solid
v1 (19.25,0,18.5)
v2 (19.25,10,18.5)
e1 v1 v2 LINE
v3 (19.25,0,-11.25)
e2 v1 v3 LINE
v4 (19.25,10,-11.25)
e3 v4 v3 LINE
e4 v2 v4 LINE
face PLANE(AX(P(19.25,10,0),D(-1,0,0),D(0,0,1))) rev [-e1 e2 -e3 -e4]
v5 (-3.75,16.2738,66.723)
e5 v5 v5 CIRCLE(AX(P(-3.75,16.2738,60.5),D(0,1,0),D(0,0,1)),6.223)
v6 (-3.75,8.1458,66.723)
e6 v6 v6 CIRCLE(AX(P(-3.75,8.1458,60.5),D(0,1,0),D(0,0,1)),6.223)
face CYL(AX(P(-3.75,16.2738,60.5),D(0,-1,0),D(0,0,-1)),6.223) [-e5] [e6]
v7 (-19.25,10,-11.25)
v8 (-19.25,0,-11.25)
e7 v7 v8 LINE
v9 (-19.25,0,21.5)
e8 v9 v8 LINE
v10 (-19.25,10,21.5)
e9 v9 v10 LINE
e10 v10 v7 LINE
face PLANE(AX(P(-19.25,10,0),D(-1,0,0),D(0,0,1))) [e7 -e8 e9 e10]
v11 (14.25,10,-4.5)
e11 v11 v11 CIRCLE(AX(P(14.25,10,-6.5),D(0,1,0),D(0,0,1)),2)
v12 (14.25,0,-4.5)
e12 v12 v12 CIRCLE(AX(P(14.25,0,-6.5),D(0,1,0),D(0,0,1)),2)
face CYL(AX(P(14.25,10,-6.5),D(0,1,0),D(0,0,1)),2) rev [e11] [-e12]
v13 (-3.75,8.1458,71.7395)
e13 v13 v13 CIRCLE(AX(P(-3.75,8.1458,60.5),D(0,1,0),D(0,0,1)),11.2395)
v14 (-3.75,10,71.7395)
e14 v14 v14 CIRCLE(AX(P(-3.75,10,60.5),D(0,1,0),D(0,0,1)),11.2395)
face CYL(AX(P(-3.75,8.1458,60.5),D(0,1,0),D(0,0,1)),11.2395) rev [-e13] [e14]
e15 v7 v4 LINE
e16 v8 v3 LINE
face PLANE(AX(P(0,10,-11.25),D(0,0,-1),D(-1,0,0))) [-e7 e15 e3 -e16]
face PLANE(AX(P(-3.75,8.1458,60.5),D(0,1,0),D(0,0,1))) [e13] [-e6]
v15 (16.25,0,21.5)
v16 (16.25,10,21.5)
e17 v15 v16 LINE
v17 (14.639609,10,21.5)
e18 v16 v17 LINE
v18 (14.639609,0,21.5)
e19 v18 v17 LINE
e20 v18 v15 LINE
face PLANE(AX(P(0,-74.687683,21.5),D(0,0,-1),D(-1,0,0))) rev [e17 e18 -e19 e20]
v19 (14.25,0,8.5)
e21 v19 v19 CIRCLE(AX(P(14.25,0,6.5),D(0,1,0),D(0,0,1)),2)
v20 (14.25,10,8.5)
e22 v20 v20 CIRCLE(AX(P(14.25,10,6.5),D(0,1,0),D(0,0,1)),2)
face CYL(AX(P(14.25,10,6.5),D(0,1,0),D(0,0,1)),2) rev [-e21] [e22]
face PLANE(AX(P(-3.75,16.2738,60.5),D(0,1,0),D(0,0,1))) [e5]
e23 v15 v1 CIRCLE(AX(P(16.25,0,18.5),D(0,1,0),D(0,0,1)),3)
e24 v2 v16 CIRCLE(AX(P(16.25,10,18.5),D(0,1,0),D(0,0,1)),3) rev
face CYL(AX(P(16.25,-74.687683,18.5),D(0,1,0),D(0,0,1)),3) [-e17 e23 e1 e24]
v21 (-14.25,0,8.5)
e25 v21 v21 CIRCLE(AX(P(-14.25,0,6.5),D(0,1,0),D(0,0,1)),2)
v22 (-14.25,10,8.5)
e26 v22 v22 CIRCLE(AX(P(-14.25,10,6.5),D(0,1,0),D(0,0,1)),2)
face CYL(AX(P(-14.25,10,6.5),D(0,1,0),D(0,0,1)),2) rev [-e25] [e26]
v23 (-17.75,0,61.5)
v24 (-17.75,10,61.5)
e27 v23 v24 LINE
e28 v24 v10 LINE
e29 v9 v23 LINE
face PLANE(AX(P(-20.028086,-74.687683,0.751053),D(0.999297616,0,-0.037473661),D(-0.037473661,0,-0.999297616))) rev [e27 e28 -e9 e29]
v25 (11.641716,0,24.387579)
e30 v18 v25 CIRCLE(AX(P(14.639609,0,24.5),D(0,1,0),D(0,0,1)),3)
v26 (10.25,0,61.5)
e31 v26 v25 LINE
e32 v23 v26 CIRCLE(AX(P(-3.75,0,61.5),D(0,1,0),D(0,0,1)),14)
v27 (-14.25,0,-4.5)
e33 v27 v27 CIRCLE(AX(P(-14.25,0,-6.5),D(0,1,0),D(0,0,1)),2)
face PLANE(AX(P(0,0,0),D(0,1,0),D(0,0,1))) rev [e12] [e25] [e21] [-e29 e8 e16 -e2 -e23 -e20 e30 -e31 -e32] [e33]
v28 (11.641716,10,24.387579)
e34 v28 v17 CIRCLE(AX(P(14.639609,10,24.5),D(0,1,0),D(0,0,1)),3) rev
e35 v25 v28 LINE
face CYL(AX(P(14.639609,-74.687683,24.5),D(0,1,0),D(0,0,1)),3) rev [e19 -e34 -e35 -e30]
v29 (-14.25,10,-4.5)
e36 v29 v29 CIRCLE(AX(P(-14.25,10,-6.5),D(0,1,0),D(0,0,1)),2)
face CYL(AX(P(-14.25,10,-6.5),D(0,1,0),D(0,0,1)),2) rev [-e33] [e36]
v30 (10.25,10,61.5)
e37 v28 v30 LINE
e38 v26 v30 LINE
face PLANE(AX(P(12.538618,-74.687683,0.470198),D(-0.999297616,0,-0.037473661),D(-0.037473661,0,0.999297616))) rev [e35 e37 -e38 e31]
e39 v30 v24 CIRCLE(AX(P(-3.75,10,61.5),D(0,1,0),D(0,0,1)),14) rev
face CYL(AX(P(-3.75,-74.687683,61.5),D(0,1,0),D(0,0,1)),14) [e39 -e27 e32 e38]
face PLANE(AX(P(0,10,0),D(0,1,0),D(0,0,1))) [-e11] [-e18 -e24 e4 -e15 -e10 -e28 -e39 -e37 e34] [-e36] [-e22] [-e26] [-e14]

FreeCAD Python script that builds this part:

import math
import FreeCAD as App
import Part
import Sketcher

V = App.Vector


def add_polygon(sketch, points):
    """Adds a closed chain of lines whose ends are joined by coincident constraints."""
    first, n = sketch.GeometryCount, len(points)
    for a, b in zip(points, points[1:] + points[:1]):
        sketch.addGeometry(Part.LineSegment(App.Vector(*a, 0), App.Vector(*b, 0)), False)
    for i in range(n):
        sketch.addConstraint(Sketcher.Constraint("Coincident", first + i, 2, first + (i + 1) % n, 1))

doc = App.newDocument("Part")
params = doc.addObject("Spreadsheet::Sheet", "Params")
for row, (alias, value) in enumerate([
    ("sketch1_width", "38.5 mm"),
    ("sketch1_height", "22.75 mm"),
    ("pad1_length", "10 mm"),
    ("sketch2_diameter", "4 mm"),
    ("hole_diameter", "4 mm"),
    ("sketch3_radius", "3 mm"),
    ("sketch3_radius2", "14 mm"),
    ("sketch3_height", "10 mm"),
    ("sketch3_width", "38.5 mm"),
    ("pad2_length", "10 mm"),
    ("pocket1_length", "1.8542 mm"),
    ("pad3_length", "8.128 mm"),
], start=1):
    params.set(f"A{row}", alias)
    params.set(f"B{row}", "=" + value)
    params.setAlias(f"B{row}", alias)

body = doc.addObject("PartDesign::Body", "Body")

# Sketch on XZ plane
sketch1 = doc.addObject("Sketcher::SketchObject", "Sketch")
body.addObject(sketch1)
sketch1.AttachmentSupport = (doc.XZ_Plane, [""])
sketch1.MapMode = "FlatFace"
add_polygon(sketch1, [(-19, -11), (-19, 12), (19, 12), (19, -11)])  # lines 0-3
sketch1.addConstraint([
    Sketcher.Constraint("Vertical", 0),
    Sketcher.Constraint("Horizontal", 1),
    Sketcher.Constraint("Vertical", 2),
    Sketcher.Constraint("Horizontal", 3),
    Sketcher.Constraint("DistanceX", 1, 1, 1, 2, 38.5),
    Sketcher.Constraint("DistanceY", 0, 1, 0, 2, 22.75),
    Sketcher.Constraint("DistanceY", -1, 1, 0, 2, 11.5),
    Sketcher.Constraint("DistanceX", 0, 2, -1, 1, 19.25),
])
sketch1.setExpression("Constraints[8]", "Params.sketch1_width")
sketch1.setExpression("Constraints[9]", "Params.sketch1_height")
pad1 = doc.addObject("PartDesign::Pad", "Pad")
body.addObject(pad1)
pad1.Profile = sketch1
pad1.setExpression("Length", "Params.pad1_length")
pad1.Reversed = True

# Sketch on XZ plane
sketch2 = doc.addObject("Sketcher::SketchObject", "Sketch001")
body.addObject(sketch2)
sketch2.AttachmentSupport = (doc.XZ_Plane, [""])
sketch2.MapMode = "FlatFace"
sketch2.AttachmentOffset = App.Placement(V(0, 0, -10), App.Rotation())
sketch2.addGeometry([
    Part.Circle(V(14.2, -6.5, 0), V(0, 0, 1), 2),
    Part.Circle(V(-14.2, 6.5, 0), V(0, 0, 1), 2),
    Part.Circle(V(-14.2, -6.5, 0), V(0, 0, 1), 2),
    Part.Circle(V(14.2, 6.5, 0), V(0, 0, 1), 2),
], False)
sketch2.addConstraint([
    Sketcher.Constraint("Equal", 0, 1),
    Sketcher.Constraint("Equal", 1, 2),
    Sketcher.Constraint("Equal", 2, 3),
    Sketcher.Constraint("Symmetric", 0, 3, 1, 3, -1, 1),
    Sketcher.Constraint("Symmetric", 2, 3, 3, 3, -1, 1),
    Sketcher.Constraint("Symmetric", 0, 3, 2, 3, -2),
    Sketcher.Constraint("Diameter", 0, 4.0),
    Sketcher.Constraint("DistanceY", 0, 3, 1, 3, 13.0),
    Sketcher.Constraint("DistanceX", 1, 3, 0, 3, 28.5),
])
sketch2.setExpression("Constraints[6]", "Params.sketch2_diameter")
doc.recompute()
hole = doc.addObject("PartDesign::Hole", "Hole")
body.addObject(hole)
hole.Profile = sketch2
hole.ThreadType = "None"
hole.setExpression("Diameter", "Params.hole_diameter")
hole.DepthType = "ThroughAll"
hole.Reversed = True

# Sketch on XZ plane
sketch3 = doc.addObject("Sketcher::SketchObject", "Sketch002")
body.addObject(sketch3)
sketch3.AttachmentSupport = (doc.XZ_Plane, [""])
sketch3.MapMode = "FlatFace"
sketch3.AttachmentOffset = App.Placement(V(0, 0, -10), App.Rotation())
sketch3.addGeometry([
    Part.LineSegment(V(-19.2, 21.5, 0), V(-19.2, 11.5, 0)),  # 0
    Part.LineSegment(V(-19.2, 11.5, 0), V(19.2, 11.5, 0)),  # 1
    Part.LineSegment(V(19.2, 11.5, 0), V(19.2, 18.5, 0)),  # 2
    Part.ArcOfCircle(Part.Circle(V(16.3, 18.5, 0), V(0, 0, 1), 3), math.radians(0), math.radians(90)),  # 3
    Part.LineSegment(V(16.2, 21.5, 0), V(14.6, 21.5, 0)),  # 4
    Part.ArcOfCircle(Part.Circle(V(14.6, 24.5, 0), V(0, 0, 1), 3), math.radians(-178), math.radians(-90)),  # 5
    Part.LineSegment(V(11.6, 24.4, 0), V(10.2, 61.5, 0)),  # 6
    Part.ArcOfCircle(Part.Circle(V(-3.8, 61.5, 0), V(0, 0, 1), 14), math.radians(0), math.radians(180)),  # 7
    Part.LineSegment(V(-17.8, 61.5, 0), V(-19.2, 21.5, 0)),  # 8
], False)
sketch3.addConstraint([
    Sketcher.Constraint("Coincident", 0, 2, 1, 1),
    Sketcher.Constraint("Coincident", 1, 2, 2, 1),
    Sketcher.Constraint("Tangent", 2, 2, 3, 1),
    Sketcher.Constraint("Tangent", 3, 2, 4, 1),
    Sketcher.Constraint("Tangent", 4, 2, 5, 2),
    Sketcher.Constraint("Tangent", 5, 1, 6, 1),
    Sketcher.Constraint("Coincident", 6, 2, 7, 1),
    Sketcher.Constraint("Coincident", 7, 2, 8, 1),
    Sketcher.Constraint("Coincident", 8, 2, 0, 1),
    Sketcher.Constraint("Vertical", 0),
    Sketcher.Constraint("Horizontal", 1),
    Sketcher.Constraint("Vertical", 2),
    Sketcher.Constraint("Horizontal", 4),
    Sketcher.Constraint("Equal", 3, 5),
    Sketcher.Constraint("Horizontal", 7, 3, 6, 2),
    Sketcher.Constraint("Horizontal", 6, 2, 7, 2),
    Sketcher.Constraint("Horizontal", 4, 2, 8, 2),
    Sketcher.Constraint("Radius", 3, 3.0),
    Sketcher.Constraint("Radius", 7, 14.0),
    Sketcher.Constraint("DistanceY", 0, 2, 0, 1, 10.0),
    Sketcher.Constraint("DistanceX", 1, 1, 1, 2, 38.5),
    Sketcher.Constraint("DistanceY", 5, 3, 7, 3, 37.0),
    Sketcher.Constraint("DistanceX", 7, 3, 3, 3, 20.0),
    Sketcher.Constraint("DistanceY", -1, 1, 3, 3, 18.5),
    Sketcher.Constraint("DistanceX", -1, 1, 3, 3, 16.25),
    Sketcher.Constraint("DistanceX", 4, 2, 4, 1, 1.610391),
])
sketch3.setExpression("Constraints[17]", "Params.sketch3_radius")
sketch3.setExpression("Constraints[18]", "Params.sketch3_radius2")
sketch3.setExpression("Constraints[19]", "Params.sketch3_height")
sketch3.setExpression("Constraints[20]", "Params.sketch3_width")
pad2 = doc.addObject("PartDesign::Pad", "Pad001")
body.addObject(pad2)
pad2.Profile = sketch3
pad2.setExpression("Length", "Params.pad2_length")

# Sketch on XZ plane
sketch4 = doc.addObject("Sketcher::SketchObject", "Sketch003")
body.addObject(sketch4)
sketch4.AttachmentSupport = (doc.XZ_Plane, [""])
sketch4.MapMode = "FlatFace"
sketch4.AttachmentOffset = App.Placement(V(0, 0, -10), App.Rotation())
sketch4.addGeometry(Part.Circle(V(-4, 60, 0), V(0, 0, 1), 11), False)
sketch4.addConstraint([
    Sketcher.Constraint("Diameter", 0, 22.479),
    Sketcher.Constraint("DistanceY", -1, 1, 0, 3, 60.5),
    Sketcher.Constraint("DistanceX", 0, 3, -1, 1, 3.75),
])
pocket1 = doc.addObject("PartDesign::Pocket", "Pocket")
body.addObject(pocket1)
pocket1.Profile = sketch4
pocket1.setExpression("Length", "Params.pocket1_length")
pocket1.Reversed = True

# Sketch on XZ plane
sketch5 = doc.addObject("Sketcher::SketchObject", "Sketch004")
body.addObject(sketch5)
sketch5.AttachmentSupport = (doc.XZ_Plane, [""])
sketch5.MapMode = "FlatFace"
sketch5.AttachmentOffset = App.Placement(V(0, 0, -8.1458), App.Rotation())
sketch5.addGeometry(Part.Circle(V(-4, 60, 0), V(0, 0, 1), 6), False)
sketch5.addConstraint([
    Sketcher.Constraint("Diameter", 0, 12.446),
    Sketcher.Constraint("DistanceY", -1, 1, 0, 3, 60.5),
    Sketcher.Constraint("DistanceX", 0, 3, -1, 1, 3.75),
])
pad3 = doc.addObject("PartDesign::Pad", "Pad002")
body.addObject(pad3)
pad3.Profile = sketch5
pad3.setExpression("Length", "Params.pad3_length")
pad3.Reversed = True

doc.recompute()
